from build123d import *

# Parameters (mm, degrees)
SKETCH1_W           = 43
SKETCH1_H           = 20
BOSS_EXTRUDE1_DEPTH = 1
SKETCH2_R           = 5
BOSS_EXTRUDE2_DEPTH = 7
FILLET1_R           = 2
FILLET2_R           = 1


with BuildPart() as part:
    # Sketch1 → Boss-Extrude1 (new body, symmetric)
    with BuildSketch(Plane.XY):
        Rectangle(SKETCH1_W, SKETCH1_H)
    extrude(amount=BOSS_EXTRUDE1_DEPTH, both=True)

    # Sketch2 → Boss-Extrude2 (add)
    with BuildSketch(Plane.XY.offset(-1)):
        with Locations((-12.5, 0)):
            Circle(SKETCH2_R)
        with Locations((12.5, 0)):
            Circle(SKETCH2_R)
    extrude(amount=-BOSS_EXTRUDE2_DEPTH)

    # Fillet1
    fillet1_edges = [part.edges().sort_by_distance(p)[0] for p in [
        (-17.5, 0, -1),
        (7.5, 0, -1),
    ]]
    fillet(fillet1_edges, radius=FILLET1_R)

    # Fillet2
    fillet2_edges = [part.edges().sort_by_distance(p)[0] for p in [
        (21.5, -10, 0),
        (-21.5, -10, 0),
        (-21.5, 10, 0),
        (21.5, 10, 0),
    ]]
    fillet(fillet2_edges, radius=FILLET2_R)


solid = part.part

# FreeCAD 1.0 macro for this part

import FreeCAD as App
import Part
import Sketcher

V = App.Vector


def edges_at(feature, points):
    """Names of the edges that pass closest to the given points."""
    edges = feature.Shape.Edges
    near = lambda p: min(range(len(edges)), key=lambda i: edges[i].distToShape(Part.Vertex(*p))[0])
    return sorted({f"Edge{near(p) + 1}" for p in points})


def add_polygon(sketch, points):
    """Adds a closed chain of lines whose ends are joined by coincident constraints."""
    first, n = sketch.GeometryCount, len(points)
    for a, b in zip(points, points[1:] + points[:1]):
        sketch.addGeometry(Part.LineSegment(App.Vector(*a, 0), App.Vector(*b, 0)), False)
    for i in range(n):
        sketch.addConstraint(Sketcher.Constraint("Coincident", first + i, 2, first + (i + 1) % n, 1))

doc = App.newDocument("Part")
params = doc.addObject("Spreadsheet::Sheet", "Params")
for row, (alias, value) in enumerate([
    ("sketch1_width", "43 mm"),
    ("sketch1_height", "20 mm"),
    ("pad1_length", "2 mm"),
    ("sketch2_diameter", "10 mm"),
    ("pad2_length", "7 mm"),
    ("fillet_radius", "2 mm"),
    ("fillet2_radius", "1 mm"),
], start=1):
    params.set(f"A{row}", alias)
    params.set(f"B{row}", "=" + value)
    params.setAlias(f"B{row}", alias)

body = doc.addObject("PartDesign::Body", "Body")

# Sketch on XY plane
sketch1 = body.newObject("Sketcher::SketchObject", "Sketch")
sketch1.AttachmentSupport = (doc.getObject("XY_Plane"), [""])
sketch1.MapMode = "FlatFace"
add_polygon(sketch1, [(-21.5, 10), (-21.5, -10), (21.5, -10), (21.5, 10)])  # lines 0-3
sketch1.addConstraint(Sketcher.Constraint("Vertical", 0))
sketch1.addConstraint(Sketcher.Constraint("Horizontal", 1))
sketch1.addConstraint(Sketcher.Constraint("Vertical", 2))
sketch1.addConstraint(Sketcher.Constraint("Horizontal", 3))
sketch1.addConstraint(Sketcher.Constraint("Symmetric", 0, 2, 2, 2, -1, 1))
sketch1.addConstraint(Sketcher.Constraint("DistanceX", 1, 1, 1, 2, 43.0))
sketch1.addConstraint(Sketcher.Constraint("DistanceY", 0, 2, 0, 1, 20.0))
sketch1.setExpression("Constraints[9]", "Params.sketch1_width")
sketch1.setExpression("Constraints[10]", "Params.sketch1_height")
pad1 = body.newObject("PartDesign::Pad", "Pad")
pad1.Profile = sketch1
pad1.setExpression("Length", "Params.pad1_length")
pad1.Midplane = True

# Sketch on XY plane
sketch2 = body.newObject("Sketcher::SketchObject", "Sketch001")
sketch2.AttachmentSupport = (doc.getObject("XY_Plane"), [""])
sketch2.MapMode = "FlatFace"
sketch2.AttachmentOffset = App.Placement(V(0, 0, -1), App.Rotation())
sketch2.addGeometry(Part.Circle(V(-12.5, 0, 0), V(0, 0, 1), 5), False)
sketch2.addGeometry(Part.Circle(V(12.5, 0, 0), V(0, 0, 1), 5), False)
sketch2.addConstraint(Sketcher.Constraint("Equal", 0, 1))
sketch2.addConstraint(Sketcher.Constraint("Symmetric", 0, 3, 1, 3, -1, 1))
sketch2.addConstraint(Sketcher.Constraint("PointOnObject", 0, 3, -1))
sketch2.addConstraint(Sketcher.Constraint("Diameter", 0, 10.0))
sketch2.addConstraint(Sketcher.Constraint("DistanceX", 0, 3, 1, 3, 25.0))
sketch2.setExpression("Constraints[3]", "Params.sketch2_diameter")
pad2 = body.newObject("PartDesign::Pad", "Pad001")
pad2.Profile = sketch2
pad2.setExpression("Length", "Params.pad2_length")
pad2.Reversed = True
doc.recompute()

fillet = body.newObject("PartDesign::Fillet", "Fillet")
fillet.Base = (pad2, edges_at(pad2, [(-17.5, 0, -1), (7.5, 0, -1)]))
fillet.setExpression("Radius", "Params.fillet_radius")
doc.recompute()

fillet2 = body.newObject("PartDesign::Fillet", "Fillet001")
fillet2.Base = (fillet, edges_at(fillet, [
    (21.5, -10, 0),
    (-21.5, -10, 0),
    (-21.5, 10, 0),
    (21.5, 10, 0),
]))
fillet2.setExpression("Radius", "Params.fillet2_radius")

doc.recompute()
